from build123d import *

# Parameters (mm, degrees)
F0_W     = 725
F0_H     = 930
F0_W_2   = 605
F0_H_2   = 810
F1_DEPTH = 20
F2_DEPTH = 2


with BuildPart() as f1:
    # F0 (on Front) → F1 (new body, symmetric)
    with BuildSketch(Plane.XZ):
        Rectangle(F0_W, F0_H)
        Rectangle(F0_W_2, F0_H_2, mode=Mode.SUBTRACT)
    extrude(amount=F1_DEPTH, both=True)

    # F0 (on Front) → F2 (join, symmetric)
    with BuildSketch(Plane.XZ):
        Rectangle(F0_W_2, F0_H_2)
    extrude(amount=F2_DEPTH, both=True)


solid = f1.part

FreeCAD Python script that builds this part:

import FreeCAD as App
import Part
import Sketcher


def add_polygon(sketch, points):
    """Adds a closed chain of lines whose ends are joined by coincident constraints."""
    first, n = sketch.GeometryCount, len(points)
    for a, b in zip(points, points[1:] + points[:1]):
        sketch.addGeometry(Part.LineSegment(App.Vector(*a, 0), App.Vector(*b, 0)), False)
    for i in range(n):
        sketch.addConstraint(Sketcher.Constraint("Coincident", first + i, 2, first + (i + 1) % n, 1))

doc = App.newDocument("Part")
body = doc.addObject("PartDesign::Body", "Body")

# Sketch on XZ plane
sketch1 = body.newObject("Sketcher::SketchObject", "Sketch")
sketch1.AttachmentSupport = (doc.getObject("XZ_Plane"), [""])
sketch1.MapMode = "FlatFace"
add_polygon(sketch1, [(-362, 465), (-362, -465), (362, -465), (362, 465)])  # lines 0-3
add_polygon(sketch1, [(302, -405), (-302, -405), (-302, 405), (302, 405)])  # lines 4-7
sketch1.addConstraint(Sketcher.Constraint("Vertical", 0))
sketch1.addConstraint(Sketcher.Constraint("Horizontal", 1))
sketch1.addConstraint(Sketcher.Constraint("Vertical", 2))
sketch1.addConstraint(Sketcher.Constraint("Horizontal", 3))
sketch1.addConstraint(Sketcher.Constraint("Horizontal", 4))
sketch1.addConstraint(Sketcher.Constraint("Vertical", 5))
sketch1.addConstraint(Sketcher.Constraint("Horizontal", 6))
sketch1.addConstraint(Sketcher.Constraint("Vertical", 7))
sketch1.addConstraint(Sketcher.Constraint("Symmetric", 0, 2, 2, 2, -1, 1))
sketch1.addConstraint(Sketcher.Constraint("Symmetric", 4, 2, 6, 2, -1, 1))
sketch1.addConstraint(Sketcher.Constraint("DistanceX", 1, 1, 1, 2, 725.0))
sketch1.addConstraint(Sketcher.Constraint("DistanceX", 4, 2, 4, 1, 605.0))
sketch1.addConstraint(Sketcher.Constraint("DistanceY", 0, 2, 0, 1, 930.0))
sketch1.addConstraint(Sketcher.Constraint("DistanceY", 5, 1, 5, 2, 810.0))
pad1 = body.newObject("PartDesign::Pad", "Pad")
pad1.Profile = sketch1
pad1.Length = 40
pad1.Midplane = True

# Sketch on XZ plane
sketch2 = body.newObject("Sketcher::SketchObject", "Sketch001")
sketch2.AttachmentSupport = (doc.getObject("XZ_Plane"), [""])
sketch2.MapMode = "FlatFace"
add_polygon(sketch2, [(-302, 405), (-302, -405), (302, -405), (302, 405)])  # lines 0-3
sketch2.addConstraint(Sketcher.Constraint("Vertical", 0))
sketch2.addConstraint(Sketcher.Constraint("Horizontal", 1))
sketch2.addConstraint(Sketcher.Constraint("Vertical", 2))
sketch2.addConstraint(Sketcher.Constraint("Horizontal", 3))
sketch2.addConstraint(Sketcher.Constraint("Symmetric", 0, 2, 2, 2, -1, 1))
sketch2.addConstraint(Sketcher.Constraint("DistanceX", 1, 1, 1, 2, 605.0))
sketch2.addConstraint(Sketcher.Constraint("DistanceY", 0, 2, 0, 1, 810.0))
pad2 = body.newObject("PartDesign::Pad", "Pad001")
pad2.Profile = sketch2
pad2.Length = 4
pad2.Midplane = True

doc.recompute()
